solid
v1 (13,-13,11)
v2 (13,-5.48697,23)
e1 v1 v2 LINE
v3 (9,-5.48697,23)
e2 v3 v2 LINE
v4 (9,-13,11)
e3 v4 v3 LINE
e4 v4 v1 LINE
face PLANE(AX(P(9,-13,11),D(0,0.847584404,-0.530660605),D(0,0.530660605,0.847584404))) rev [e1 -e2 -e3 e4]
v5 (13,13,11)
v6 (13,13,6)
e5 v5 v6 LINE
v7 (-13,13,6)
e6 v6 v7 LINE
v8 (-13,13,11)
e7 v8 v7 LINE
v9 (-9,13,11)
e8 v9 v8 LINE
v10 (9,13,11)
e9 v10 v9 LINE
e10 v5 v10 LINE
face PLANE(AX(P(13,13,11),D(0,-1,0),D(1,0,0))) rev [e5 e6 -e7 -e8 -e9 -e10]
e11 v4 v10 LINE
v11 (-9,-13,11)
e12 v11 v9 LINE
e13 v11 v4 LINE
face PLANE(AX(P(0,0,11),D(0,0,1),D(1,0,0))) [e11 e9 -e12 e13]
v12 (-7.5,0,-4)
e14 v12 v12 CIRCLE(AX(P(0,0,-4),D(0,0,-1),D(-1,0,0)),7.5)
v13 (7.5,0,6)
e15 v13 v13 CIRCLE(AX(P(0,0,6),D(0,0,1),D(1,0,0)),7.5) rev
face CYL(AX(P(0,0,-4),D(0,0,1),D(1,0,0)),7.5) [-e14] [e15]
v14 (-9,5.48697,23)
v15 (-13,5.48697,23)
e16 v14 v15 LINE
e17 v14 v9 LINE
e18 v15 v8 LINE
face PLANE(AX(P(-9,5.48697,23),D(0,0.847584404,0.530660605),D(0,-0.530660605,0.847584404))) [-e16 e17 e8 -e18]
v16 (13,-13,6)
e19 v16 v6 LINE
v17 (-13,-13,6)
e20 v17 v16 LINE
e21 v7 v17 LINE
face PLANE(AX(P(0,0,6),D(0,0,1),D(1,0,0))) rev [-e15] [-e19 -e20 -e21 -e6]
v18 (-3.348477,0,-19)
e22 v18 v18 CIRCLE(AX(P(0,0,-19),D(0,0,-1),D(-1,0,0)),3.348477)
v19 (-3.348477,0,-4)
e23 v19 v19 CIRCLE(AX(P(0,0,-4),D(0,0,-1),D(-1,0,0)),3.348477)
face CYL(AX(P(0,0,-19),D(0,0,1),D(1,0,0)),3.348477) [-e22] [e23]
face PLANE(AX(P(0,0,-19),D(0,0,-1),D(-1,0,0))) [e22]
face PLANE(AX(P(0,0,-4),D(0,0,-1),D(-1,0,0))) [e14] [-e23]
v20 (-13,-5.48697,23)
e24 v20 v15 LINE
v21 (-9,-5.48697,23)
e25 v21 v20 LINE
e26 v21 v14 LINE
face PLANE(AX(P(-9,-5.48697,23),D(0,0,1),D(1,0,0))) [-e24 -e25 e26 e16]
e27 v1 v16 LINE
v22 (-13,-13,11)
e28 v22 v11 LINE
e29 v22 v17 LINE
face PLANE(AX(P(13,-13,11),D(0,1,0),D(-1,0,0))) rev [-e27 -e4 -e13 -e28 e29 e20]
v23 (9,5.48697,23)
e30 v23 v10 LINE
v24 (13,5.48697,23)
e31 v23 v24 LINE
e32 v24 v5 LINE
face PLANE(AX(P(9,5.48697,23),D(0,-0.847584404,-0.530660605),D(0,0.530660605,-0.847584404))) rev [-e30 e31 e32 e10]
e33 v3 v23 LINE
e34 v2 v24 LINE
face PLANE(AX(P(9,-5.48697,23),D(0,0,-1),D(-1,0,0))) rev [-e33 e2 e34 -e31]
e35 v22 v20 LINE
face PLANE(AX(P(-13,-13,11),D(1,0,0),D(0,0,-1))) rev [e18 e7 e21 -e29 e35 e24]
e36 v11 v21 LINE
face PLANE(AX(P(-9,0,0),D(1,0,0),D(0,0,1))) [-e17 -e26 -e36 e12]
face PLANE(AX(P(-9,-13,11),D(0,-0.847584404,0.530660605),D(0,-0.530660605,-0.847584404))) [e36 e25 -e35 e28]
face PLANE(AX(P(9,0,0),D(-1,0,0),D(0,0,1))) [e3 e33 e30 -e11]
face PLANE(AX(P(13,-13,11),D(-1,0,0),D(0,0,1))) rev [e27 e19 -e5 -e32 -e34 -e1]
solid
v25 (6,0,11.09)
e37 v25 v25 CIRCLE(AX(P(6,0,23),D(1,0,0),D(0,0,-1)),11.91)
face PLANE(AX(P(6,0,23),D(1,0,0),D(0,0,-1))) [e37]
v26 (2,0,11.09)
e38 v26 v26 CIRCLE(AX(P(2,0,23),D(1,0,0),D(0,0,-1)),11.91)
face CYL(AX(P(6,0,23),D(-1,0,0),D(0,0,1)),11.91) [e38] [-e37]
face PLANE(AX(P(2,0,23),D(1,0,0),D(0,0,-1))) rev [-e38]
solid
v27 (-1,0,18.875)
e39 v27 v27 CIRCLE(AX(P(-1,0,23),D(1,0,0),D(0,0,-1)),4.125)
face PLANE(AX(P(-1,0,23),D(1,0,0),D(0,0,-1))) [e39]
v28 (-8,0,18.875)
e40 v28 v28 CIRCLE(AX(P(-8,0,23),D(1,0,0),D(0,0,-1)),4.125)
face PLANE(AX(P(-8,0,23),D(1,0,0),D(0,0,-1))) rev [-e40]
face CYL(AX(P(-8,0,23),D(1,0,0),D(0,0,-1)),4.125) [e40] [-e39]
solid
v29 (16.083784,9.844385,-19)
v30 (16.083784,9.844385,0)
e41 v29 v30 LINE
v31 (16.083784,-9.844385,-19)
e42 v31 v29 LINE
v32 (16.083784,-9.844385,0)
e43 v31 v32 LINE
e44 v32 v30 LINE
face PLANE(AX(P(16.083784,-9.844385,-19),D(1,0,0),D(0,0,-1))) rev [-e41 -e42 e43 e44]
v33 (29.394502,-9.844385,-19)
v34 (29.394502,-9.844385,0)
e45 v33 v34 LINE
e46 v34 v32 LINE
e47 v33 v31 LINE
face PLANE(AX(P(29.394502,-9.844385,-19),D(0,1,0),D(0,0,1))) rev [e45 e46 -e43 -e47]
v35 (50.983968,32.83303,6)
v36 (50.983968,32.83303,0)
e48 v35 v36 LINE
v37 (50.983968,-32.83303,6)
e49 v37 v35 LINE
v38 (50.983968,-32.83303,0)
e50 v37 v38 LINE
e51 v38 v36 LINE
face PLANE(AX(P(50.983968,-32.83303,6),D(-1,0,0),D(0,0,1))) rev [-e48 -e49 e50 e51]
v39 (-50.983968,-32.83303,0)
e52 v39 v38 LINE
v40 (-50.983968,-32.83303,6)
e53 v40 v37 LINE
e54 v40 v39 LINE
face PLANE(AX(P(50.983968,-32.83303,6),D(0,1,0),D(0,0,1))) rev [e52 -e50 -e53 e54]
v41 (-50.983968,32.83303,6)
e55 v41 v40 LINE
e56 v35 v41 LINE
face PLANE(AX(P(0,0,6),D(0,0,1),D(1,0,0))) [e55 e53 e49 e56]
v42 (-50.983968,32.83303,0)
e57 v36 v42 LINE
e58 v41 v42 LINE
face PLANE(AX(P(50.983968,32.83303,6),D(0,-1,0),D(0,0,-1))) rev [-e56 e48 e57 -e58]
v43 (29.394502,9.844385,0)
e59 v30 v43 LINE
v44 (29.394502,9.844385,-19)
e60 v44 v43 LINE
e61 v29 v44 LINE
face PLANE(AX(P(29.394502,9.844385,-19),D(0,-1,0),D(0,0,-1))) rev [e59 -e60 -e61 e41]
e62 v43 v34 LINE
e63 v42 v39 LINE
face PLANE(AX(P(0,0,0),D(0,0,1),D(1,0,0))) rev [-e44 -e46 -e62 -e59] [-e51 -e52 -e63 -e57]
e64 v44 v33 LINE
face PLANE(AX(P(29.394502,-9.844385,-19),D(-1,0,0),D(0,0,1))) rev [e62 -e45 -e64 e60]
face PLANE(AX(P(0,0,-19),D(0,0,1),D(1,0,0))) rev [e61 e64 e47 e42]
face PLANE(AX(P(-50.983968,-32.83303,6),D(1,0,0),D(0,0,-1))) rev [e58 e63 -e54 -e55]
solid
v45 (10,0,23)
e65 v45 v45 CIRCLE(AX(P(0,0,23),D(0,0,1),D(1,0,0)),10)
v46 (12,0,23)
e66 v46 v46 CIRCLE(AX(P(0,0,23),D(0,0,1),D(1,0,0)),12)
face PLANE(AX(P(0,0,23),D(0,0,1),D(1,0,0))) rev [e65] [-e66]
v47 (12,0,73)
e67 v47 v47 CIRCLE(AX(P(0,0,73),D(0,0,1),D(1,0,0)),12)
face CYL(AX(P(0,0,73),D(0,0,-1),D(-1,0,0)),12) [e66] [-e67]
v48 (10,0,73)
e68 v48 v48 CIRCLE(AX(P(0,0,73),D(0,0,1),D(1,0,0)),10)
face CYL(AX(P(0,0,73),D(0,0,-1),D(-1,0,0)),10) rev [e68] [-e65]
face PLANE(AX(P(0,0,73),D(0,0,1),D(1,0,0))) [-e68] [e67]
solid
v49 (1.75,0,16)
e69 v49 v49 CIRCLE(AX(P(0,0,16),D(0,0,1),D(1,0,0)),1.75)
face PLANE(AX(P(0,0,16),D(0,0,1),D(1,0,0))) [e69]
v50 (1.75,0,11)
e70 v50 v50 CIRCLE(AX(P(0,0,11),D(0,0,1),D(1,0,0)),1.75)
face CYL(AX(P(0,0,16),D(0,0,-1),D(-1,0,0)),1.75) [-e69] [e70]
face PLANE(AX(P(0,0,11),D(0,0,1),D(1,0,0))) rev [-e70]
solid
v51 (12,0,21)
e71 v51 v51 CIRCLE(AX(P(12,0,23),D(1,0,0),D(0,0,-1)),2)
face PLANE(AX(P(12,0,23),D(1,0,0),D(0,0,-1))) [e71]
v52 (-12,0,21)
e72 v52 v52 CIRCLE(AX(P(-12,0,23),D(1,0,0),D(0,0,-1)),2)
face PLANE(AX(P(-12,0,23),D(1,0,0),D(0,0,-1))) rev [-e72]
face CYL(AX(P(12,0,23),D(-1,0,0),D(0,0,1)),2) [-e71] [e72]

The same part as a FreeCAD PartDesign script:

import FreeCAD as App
import Part
import Sketcher


def add_polygon(sketch, points):
    """Adds a closed chain of lines whose ends are joined by coincident constraints."""
    first, n = sketch.GeometryCount, len(points)
    for a, b in zip(points, points[1:] + points[:1]):
        sketch.addGeometry(Part.LineSegment(App.Vector(*a, 0), App.Vector(*b, 0)), False)
    for i in range(n):
        sketch.addConstraint(Sketcher.Constraint("Coincident", first + i, 2, first + (i + 1) % n, 1))

doc = App.newDocument("Part")
body = doc.addObject("PartDesign::Body", "Body")

# Sketch on XY plane
sketch1 = body.newObject("Sketcher::SketchObject", "Sketch")
sketch1.AttachmentSupport = (doc.getObject("XY_Plane"), [""])
sketch1.MapMode = "FlatFace"
add_polygon(sketch1, [(-50.983968, 32.83303), (-50.983968, -32.83303), (50.983968, -32.83303), (50.983968, 32.83303)])  # lines 0-3
sketch1.addConstraint([
    Sketcher.Constraint("Vertical", 0),
    Sketcher.Constraint("Horizontal", 1),
    Sketcher.Constraint("Vertical", 2),
    Sketcher.Constraint("Horizontal", 3),
    Sketcher.Constraint("Symmetric", 0, 2, 2, 2, -1, 1),
    Sketcher.Constraint("DistanceY", 0, 2, 0, 1, 65.66606),
    Sketcher.Constraint("DistanceX", 1, 1, 1, 2, 101.967936),
])
pad1 = body.newObject("PartDesign::Pad", "Pad")
pad1.Profile = sketch1
pad1.Length = 6

# Sketch on XY plane
sketch2 = body.newObject("Sketcher::SketchObject", "Sketch001")
sketch2.AttachmentSupport = (doc.getObject("XY_Plane"), [""])
sketch2.MapMode = "FlatFace"
add_polygon(sketch2, [(29.394502, 9.844385), (29.394502, -9.844385), (16.083784, -9.844385), (16.083784, 9.844385)])  # lines 0-3
sketch2.addConstraint([
    Sketcher.Constraint("Vertical", 0),
    Sketcher.Constraint("Horizontal", 1),
    Sketcher.Constraint("Vertical", 2),
    Sketcher.Constraint("Horizontal", 3),
    Sketcher.Constraint("DistanceY", 0, 2, 0, 1, 19.68877),
    Sketcher.Constraint("DistanceX", -1, 1, 0, 2, 29.394502),
    Sketcher.Constraint("DistanceX", 1, 2, 1, 1, 13.310718),
    Sketcher.Constraint("DistanceY", 0, 2, -1, 1, 9.844385),
])
pad2 = body.newObject("PartDesign::Pad", "Pad001")
pad2.Profile = sketch2
pad2.Length = 19
pad2.Reversed = True
body2 = doc.addObject("PartDesign::Body", "Body001")

# Sketch on XY plane
sketch3 = body2.newObject("Sketcher::SketchObject", "Sketch002")
sketch3.AttachmentSupport = (doc.getObject("XY_Plane001"), [""])
sketch3.MapMode = "FlatFace"
sketch3.AttachmentOffset = App.Placement(App.Vector(0, 0, 6), App.Rotation())
add_polygon(sketch3, [(-13, 13), (-13, -13), (13, -13), (13, 13)])  # lines 0-3
sketch3.addConstraint([
    Sketcher.Constraint("Vertical", 0),
    Sketcher.Constraint("Horizontal", 1),
    Sketcher.Constraint("Vertical", 2),
    Sketcher.Constraint("Horizontal", 3),
    Sketcher.Constraint("Symmetric", 0, 2, 2, 2, -1, 1),
    Sketcher.Constraint("Equal", 3, 0),
    Sketcher.Constraint("DistanceX", 1, 1, 1, 2, 26.0),
])
pad3 = body2.newObject("PartDesign::Pad", "Pad002")
pad3.Profile = sketch3
pad3.Length = 5

# Sketch on YZ plane
sketch4 = body2.newObject("Sketcher::SketchObject", "Sketch003")
sketch4.AttachmentSupport = (doc.getObject("YZ_Plane001"), [""])
sketch4.MapMode = "FlatFace"
sketch4.AttachmentOffset = App.Placement(App.Vector(0, 0, 13), App.Rotation())
add_polygon(sketch4, [(-5.48697, 23), (-13, 11), (13, 11), (5.48697, 23)])  # lines 0-3
sketch4.addConstraint([
    Sketcher.Constraint("Horizontal", 1),
    Sketcher.Constraint("Horizontal", 3),
    Sketcher.Constraint("Equal", 0, 2),
    Sketcher.Constraint("DistanceX", 1, 1, 1, 2, 26.0),
    Sketcher.Constraint("DistanceX", 0, 2, -1, 1, 13.0),
    Sketcher.Constraint("DistanceY", -1, 1, 0, 2, 11.0),
    Sketcher.Constraint("DistanceY", -1, 1, 2, 2, 23.0),
    Sketcher.Constraint("DistanceX", 3, 2, 3, 1, 10.97394),
])
pad4 = body2.newObject("PartDesign::Pad", "Pad003")
pad4.Profile = sketch4
pad4.Length = 4
pad4.Reversed = True
doc.recompute()

mirrored = body2.newObject("PartDesign::Mirrored", "Mirrored")
mirrored.Originals = [pad4]
mirrored.MirrorPlane = (doc.getObject("YZ_Plane001"), [""])
body2.Tip = mirrored

# Sketch on XY plane
sketch5 = body2.newObject("Sketcher::SketchObject", "Sketch004")
sketch5.AttachmentSupport = (doc.getObject("XY_Plane001"), [""])
sketch5.MapMode = "FlatFace"
sketch5.AttachmentOffset = App.Placement(App.Vector(0, 0, 6), App.Rotation())
sketch5.addGeometry(Part.Circle(App.Vector(0, 0, 0), App.Vector(0, 0, 1), 7.5), False)
sketch5.addConstraint([
    Sketcher.Constraint("Coincident", 0, 3, -1, 1),
    Sketcher.Constraint("Diameter", 0, 15.0),
])
pad5 = body2.newObject("PartDesign::Pad", "Pad004")
pad5.Profile = sketch5
pad5.Length = 10
pad5.Reversed = True

# Sketch on XY plane
sketch6 = body2.newObject("Sketcher::SketchObject", "Sketch005")
sketch6.AttachmentSupport = (doc.getObject("XY_Plane001"), [""])
sketch6.MapMode = "FlatFace"
sketch6.AttachmentOffset = App.Placement(App.Vector(0, 0, -4), App.Rotation())
sketch6.addGeometry(Part.Circle(App.Vector(0, 0, 0), App.Vector(0, 0, 1), 3.348477), False)
sketch6.addConstraint([
    Sketcher.Constraint("Coincident", 0, 3, -1, 1),
    Sketcher.Constraint("Diameter", 0, 6.696953),
])
pad6 = body2.newObject("PartDesign::Pad", "Pad005")
pad6.Profile = sketch6
pad6.Length = 15
pad6.Reversed = True
body3 = doc.addObject("PartDesign::Body", "Body002")

# Sketch on XY plane
sketch7 = body3.newObject("Sketcher::SketchObject", "Sketch006")
sketch7.AttachmentSupport = (doc.getObject("XY_Plane002"), [""])
sketch7.MapMode = "FlatFace"
sketch7.AttachmentOffset = App.Placement(App.Vector(0, 0, 23), App.Rotation())
sketch7.addGeometry([
    Part.Circle(App.Vector(0, 0, 0), App.Vector(0, 0, 1), 12),
    Part.Circle(App.Vector(0, 0, 0), App.Vector(0, 0, 1), 10),
], False)
sketch7.addConstraint([
    Sketcher.Constraint("Coincident", 0, 3, -1, 1),
    Sketcher.Constraint("Coincident", 1, 3, -1, 1),
    Sketcher.Constraint("Diameter", 0, 24.0),
    Sketcher.Constraint("Diameter", 1, 20.0),
])
pad7 = body3.newObject("PartDesign::Pad", "Pad006")
pad7.Profile = sketch7
pad7.Length = 50
body4 = doc.addObject("PartDesign::Body", "Body003")

# Sketch on XY plane
sketch8 = body4.newObject("Sketcher::SketchObject", "Sketch007")
sketch8.AttachmentSupport = (doc.getObject("XY_Plane003"), [""])
sketch8.MapMode = "FlatFace"
sketch8.AttachmentOffset = App.Placement(App.Vector(0, 0, 11), App.Rotation())
sketch8.addGeometry(Part.Circle(App.Vector(0, 0, 0), App.Vector(0, 0, 1), 1.75), False)
sketch8.addConstraint([
    Sketcher.Constraint("Coincident", 0, 3, -1, 1),
    Sketcher.Constraint("Diameter", 0, 3.5),
])
pad8 = body4.newObject("PartDesign::Pad", "Pad007")
pad8.Profile = sketch8
pad8.Length = 5
body5 = doc.addObject("PartDesign::Body", "Body004")

# Sketch on YZ plane
sketch9 = body5.newObject("Sketcher::SketchObject", "Sketch008")
sketch9.AttachmentSupport = (doc.getObject("YZ_Plane004"), [""])
sketch9.MapMode = "FlatFace"
sketch9.AttachmentOffset = App.Placement(App.Vector(0, 0, 2), App.Rotation())
sketch9.addGeometry(Part.Circle(App.Vector(0, 23, 0), App.Vector(0, 0, 1), 11.91), False)
sketch9.addConstraint([
    Sketcher.Constraint("PointOnObject", 0, 3, -2),
    Sketcher.Constraint("Diameter", 0, 23.82),
    Sketcher.Constraint("DistanceY", -1, 1, 0, 3, 23.0),
])
pad9 = body5.newObject("PartDesign::Pad", "Pad008")
pad9.Profile = sketch9
pad9.Length = 4
body6 = doc.addObject("PartDesign::Body", "Body005")

# Sketch on YZ plane
sketch10 = body6.newObject("Sketcher::SketchObject", "Sketch009")
sketch10.AttachmentSupport = (doc.getObject("YZ_Plane005"), [""])
sketch10.MapMode = "FlatFace"
sketch10.addGeometry(Part.Circle(App.Vector(0, 23, 0), App.Vector(0, 0, 1), 2), False)
sketch10.addConstraint([
    Sketcher.Constraint("PointOnObject", 0, 3, -2),
    Sketcher.Constraint("Diameter", 0, 4.0),
    Sketcher.Constraint("DistanceY", -1, 1, 0, 3, 23.0),
])
pad10 = body6.newObject("PartDesign::Pad", "Pad009")
pad10.Profile = sketch10
pad10.Length = 24
pad10.Midplane = True
body7 = doc.addObject("PartDesign::Body", "Body006")

# Sketch on YZ plane
sketch11 = body7.newObject("Sketcher::SketchObject", "Sketch010")
sketch11.AttachmentSupport = (doc.getObject("YZ_Plane006"), [""])
sketch11.MapMode = "FlatFace"
sketch11.AttachmentOffset = App.Placement(App.Vector(0, 0, -1), App.Rotation())
sketch11.addGeometry(Part.Circle(App.Vector(0, 23, 0), App.Vector(0, 0, 1), 4.125), False)
sketch11.addConstraint([
    Sketcher.Constraint("PointOnObject", 0, 3, -2),
    Sketcher.Constraint("Diameter", 0, 8.25),
    Sketcher.Constraint("DistanceY", -1, 1, 0, 3, 23.0),
])
pad11 = body7.newObject("PartDesign::Pad", "Pad010")
pad11.Profile = sketch11
pad11.Length = 7
pad11.Reversed = True

doc.recompute()
